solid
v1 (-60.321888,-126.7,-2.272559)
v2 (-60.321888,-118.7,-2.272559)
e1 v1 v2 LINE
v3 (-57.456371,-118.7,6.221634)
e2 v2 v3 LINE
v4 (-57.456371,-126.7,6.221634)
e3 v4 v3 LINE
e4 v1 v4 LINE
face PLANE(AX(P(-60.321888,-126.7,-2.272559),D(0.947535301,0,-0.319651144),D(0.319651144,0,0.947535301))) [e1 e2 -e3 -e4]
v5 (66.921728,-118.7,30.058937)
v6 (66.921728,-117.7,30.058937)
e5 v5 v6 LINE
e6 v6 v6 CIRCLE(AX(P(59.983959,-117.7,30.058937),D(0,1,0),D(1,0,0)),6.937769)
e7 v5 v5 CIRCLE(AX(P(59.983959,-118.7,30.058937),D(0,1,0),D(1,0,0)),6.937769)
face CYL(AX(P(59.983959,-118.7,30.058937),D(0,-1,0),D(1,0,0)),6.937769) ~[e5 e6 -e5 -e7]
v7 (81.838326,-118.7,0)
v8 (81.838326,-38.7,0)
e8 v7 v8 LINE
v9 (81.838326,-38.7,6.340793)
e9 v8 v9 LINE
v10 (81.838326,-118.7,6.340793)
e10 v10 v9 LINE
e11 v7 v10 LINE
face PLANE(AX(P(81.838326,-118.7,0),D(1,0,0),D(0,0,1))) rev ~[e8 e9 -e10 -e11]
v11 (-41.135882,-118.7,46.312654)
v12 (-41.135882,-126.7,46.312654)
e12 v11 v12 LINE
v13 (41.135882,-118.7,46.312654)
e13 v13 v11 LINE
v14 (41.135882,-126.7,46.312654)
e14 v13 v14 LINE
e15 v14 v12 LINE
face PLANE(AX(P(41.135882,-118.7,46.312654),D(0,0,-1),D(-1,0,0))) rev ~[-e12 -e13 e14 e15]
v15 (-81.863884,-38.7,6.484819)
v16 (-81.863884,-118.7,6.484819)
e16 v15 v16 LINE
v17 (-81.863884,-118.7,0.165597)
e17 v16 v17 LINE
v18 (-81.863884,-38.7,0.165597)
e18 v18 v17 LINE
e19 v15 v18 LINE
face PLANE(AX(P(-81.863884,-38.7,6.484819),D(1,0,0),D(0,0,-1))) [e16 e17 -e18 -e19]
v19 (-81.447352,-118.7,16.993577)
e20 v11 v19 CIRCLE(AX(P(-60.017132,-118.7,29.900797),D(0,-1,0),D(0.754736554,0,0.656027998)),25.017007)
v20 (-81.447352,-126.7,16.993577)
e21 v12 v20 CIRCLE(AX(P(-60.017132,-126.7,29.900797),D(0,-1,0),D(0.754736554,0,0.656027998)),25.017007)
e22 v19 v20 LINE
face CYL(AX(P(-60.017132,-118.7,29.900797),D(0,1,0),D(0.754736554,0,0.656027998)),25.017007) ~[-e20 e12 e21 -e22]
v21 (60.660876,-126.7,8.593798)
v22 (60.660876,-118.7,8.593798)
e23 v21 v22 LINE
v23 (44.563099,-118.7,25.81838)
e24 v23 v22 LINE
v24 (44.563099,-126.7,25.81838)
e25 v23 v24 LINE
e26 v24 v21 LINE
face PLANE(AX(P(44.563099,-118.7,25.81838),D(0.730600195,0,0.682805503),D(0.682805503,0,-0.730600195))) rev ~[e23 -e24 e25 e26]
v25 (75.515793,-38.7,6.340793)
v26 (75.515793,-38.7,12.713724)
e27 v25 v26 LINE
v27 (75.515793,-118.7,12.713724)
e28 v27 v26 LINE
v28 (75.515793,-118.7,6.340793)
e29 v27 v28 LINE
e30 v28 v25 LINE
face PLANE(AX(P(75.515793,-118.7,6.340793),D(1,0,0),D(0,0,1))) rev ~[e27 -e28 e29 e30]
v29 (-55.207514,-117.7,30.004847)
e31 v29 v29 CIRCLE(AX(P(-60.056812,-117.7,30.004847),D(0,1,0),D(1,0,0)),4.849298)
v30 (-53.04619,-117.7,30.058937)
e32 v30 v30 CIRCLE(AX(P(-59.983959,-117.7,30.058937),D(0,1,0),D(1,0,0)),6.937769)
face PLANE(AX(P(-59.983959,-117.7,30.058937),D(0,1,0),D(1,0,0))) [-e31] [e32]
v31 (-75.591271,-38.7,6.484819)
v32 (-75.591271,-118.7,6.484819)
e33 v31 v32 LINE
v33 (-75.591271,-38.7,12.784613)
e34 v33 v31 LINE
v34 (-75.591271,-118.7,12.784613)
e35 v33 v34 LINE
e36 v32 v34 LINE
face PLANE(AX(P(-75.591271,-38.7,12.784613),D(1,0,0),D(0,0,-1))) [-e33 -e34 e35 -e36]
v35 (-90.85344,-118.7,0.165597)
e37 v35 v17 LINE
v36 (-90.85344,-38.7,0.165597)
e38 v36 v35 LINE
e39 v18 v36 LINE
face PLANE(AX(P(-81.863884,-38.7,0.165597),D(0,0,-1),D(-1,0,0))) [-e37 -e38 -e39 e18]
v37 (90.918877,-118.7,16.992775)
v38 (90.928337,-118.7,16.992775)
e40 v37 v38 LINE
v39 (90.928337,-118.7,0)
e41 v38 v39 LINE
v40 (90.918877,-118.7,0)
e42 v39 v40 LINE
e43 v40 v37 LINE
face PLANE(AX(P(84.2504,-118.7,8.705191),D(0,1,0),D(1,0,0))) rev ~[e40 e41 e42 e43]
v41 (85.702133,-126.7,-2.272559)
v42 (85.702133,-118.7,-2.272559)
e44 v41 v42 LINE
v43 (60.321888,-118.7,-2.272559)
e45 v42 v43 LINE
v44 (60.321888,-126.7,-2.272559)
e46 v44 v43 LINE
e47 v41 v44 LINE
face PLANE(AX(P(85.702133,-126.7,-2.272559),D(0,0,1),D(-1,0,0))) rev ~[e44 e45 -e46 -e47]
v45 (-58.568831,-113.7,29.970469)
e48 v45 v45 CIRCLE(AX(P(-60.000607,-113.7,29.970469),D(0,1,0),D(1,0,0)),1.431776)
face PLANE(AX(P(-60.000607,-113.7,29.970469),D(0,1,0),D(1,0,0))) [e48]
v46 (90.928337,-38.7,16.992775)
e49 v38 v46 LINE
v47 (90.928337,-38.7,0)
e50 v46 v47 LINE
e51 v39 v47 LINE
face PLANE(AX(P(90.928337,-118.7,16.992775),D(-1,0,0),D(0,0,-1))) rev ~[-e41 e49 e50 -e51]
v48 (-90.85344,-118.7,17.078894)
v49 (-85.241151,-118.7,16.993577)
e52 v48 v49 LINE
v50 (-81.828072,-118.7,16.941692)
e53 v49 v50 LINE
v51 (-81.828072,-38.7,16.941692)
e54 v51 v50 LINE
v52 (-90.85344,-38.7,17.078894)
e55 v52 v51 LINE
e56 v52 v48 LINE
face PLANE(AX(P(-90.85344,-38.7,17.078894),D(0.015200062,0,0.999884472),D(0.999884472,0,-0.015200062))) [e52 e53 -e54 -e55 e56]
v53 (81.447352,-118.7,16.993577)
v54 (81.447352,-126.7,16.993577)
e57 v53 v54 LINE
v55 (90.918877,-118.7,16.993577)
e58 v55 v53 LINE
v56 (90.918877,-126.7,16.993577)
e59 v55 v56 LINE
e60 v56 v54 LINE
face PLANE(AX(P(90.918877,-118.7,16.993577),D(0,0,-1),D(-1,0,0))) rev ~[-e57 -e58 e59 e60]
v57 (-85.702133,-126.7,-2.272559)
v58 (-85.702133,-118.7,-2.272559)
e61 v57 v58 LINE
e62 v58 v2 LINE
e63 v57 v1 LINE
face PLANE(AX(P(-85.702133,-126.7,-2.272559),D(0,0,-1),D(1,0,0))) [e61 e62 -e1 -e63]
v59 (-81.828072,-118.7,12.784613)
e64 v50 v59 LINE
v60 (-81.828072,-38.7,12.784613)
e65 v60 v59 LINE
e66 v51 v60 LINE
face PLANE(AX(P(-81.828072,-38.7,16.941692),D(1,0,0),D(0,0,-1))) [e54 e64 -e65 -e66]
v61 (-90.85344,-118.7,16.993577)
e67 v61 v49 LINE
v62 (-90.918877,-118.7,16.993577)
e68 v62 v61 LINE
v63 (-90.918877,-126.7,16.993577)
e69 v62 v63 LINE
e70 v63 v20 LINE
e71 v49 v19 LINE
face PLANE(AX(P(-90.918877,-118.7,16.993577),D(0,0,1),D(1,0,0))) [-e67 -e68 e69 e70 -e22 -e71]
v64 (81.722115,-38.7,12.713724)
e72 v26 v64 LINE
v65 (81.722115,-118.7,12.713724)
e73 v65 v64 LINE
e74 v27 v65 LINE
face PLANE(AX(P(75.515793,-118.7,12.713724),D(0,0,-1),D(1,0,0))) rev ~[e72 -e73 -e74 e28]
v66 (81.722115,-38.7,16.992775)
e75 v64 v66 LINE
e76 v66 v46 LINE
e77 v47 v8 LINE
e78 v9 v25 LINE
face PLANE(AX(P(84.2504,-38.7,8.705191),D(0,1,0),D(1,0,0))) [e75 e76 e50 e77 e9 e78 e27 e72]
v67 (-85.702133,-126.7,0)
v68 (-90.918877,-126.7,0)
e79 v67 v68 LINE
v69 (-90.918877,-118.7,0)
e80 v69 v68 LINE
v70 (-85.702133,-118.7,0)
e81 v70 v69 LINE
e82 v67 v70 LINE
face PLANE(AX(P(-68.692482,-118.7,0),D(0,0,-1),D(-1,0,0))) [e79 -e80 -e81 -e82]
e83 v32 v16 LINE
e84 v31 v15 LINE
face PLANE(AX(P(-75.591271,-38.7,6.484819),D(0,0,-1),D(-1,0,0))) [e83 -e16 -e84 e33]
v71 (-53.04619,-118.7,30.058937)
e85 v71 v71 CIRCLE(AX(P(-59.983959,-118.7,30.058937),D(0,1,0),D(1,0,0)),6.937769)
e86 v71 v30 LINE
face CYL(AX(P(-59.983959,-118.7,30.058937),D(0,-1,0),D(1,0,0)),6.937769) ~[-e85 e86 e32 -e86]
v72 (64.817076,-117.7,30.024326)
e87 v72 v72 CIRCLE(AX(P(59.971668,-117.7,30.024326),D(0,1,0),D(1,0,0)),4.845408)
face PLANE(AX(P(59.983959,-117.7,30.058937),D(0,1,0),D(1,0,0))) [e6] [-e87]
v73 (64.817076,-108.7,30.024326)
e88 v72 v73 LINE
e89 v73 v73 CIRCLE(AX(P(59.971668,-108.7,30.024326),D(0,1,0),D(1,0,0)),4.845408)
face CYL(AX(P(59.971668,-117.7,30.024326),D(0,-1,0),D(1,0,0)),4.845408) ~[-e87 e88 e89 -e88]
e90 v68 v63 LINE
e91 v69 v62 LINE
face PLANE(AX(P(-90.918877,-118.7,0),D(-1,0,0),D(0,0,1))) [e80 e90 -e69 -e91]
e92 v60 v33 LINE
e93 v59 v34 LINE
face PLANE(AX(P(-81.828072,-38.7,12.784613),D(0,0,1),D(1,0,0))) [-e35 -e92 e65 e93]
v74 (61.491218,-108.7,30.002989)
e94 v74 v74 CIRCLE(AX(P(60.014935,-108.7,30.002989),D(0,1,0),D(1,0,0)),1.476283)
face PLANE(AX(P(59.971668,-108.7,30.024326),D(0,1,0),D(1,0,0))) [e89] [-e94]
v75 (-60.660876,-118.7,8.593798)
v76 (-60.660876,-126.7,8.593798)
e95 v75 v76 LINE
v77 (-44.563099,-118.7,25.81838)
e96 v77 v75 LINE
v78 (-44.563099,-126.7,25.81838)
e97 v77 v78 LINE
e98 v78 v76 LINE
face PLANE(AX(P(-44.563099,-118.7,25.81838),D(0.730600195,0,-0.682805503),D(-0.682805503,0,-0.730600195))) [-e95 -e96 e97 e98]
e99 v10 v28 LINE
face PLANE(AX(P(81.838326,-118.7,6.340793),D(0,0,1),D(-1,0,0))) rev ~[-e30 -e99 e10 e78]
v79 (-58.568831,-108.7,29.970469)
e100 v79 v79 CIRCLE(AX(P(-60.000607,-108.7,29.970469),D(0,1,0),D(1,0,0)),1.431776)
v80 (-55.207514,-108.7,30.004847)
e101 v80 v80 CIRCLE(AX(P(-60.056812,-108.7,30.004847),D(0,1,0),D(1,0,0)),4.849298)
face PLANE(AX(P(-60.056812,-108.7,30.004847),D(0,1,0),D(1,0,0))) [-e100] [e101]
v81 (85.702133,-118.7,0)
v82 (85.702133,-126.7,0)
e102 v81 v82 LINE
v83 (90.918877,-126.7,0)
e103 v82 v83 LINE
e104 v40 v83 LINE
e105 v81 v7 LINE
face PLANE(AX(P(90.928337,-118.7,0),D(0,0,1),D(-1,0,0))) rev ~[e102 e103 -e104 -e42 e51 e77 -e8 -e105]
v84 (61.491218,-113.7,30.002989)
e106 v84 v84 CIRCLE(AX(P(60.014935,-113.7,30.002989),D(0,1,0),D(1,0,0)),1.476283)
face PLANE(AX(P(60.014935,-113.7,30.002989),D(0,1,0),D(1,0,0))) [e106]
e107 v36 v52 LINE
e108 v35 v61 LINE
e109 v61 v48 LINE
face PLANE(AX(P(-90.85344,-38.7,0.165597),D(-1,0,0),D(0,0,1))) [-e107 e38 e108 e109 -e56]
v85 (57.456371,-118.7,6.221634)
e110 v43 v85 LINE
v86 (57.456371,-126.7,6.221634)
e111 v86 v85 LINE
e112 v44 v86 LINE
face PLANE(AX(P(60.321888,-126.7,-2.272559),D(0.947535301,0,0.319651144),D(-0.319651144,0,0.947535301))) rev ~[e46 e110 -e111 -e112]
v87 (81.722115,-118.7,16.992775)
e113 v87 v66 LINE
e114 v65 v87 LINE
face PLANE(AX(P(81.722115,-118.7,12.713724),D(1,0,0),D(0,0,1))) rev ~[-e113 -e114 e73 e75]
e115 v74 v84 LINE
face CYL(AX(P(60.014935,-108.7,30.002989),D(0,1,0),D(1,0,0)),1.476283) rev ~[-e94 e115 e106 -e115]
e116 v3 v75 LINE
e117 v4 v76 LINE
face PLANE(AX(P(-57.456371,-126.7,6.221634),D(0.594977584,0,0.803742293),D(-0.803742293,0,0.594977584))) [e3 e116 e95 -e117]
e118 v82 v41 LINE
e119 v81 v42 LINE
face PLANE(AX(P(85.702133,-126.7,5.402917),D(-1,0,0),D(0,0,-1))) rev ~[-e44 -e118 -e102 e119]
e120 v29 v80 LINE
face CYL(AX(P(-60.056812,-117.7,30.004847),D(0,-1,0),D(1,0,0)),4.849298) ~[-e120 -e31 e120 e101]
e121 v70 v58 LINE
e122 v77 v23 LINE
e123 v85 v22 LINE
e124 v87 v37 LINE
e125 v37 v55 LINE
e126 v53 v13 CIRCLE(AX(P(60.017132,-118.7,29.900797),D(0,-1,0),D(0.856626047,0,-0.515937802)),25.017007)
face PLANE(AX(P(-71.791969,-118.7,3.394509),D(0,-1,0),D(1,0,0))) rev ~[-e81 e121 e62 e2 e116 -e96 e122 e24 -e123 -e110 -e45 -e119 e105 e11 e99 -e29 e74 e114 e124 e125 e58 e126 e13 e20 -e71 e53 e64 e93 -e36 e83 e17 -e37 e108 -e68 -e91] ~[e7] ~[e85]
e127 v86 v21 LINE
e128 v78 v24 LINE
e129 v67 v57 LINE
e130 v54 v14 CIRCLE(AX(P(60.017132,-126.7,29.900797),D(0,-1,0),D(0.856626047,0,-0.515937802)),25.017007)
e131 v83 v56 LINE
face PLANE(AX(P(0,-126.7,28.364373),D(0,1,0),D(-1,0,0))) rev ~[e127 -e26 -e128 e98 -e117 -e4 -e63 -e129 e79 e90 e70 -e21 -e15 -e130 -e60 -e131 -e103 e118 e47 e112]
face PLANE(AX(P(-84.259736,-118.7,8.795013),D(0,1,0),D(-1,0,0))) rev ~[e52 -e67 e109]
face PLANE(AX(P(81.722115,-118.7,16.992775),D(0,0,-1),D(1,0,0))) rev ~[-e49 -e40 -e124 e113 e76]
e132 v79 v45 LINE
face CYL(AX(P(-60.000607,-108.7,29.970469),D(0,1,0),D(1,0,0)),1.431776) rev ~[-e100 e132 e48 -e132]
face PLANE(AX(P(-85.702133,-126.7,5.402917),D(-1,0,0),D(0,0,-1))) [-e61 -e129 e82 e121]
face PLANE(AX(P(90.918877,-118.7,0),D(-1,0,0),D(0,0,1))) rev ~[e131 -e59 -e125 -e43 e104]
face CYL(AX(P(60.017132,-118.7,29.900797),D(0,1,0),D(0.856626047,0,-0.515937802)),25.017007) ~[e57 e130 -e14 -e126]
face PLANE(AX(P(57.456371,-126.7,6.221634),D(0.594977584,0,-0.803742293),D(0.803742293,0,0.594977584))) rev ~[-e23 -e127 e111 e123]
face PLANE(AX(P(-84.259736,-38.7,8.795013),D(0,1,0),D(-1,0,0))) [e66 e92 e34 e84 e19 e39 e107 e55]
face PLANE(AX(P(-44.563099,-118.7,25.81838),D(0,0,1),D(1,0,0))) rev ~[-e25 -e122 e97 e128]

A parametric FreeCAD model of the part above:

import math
import FreeCAD as App
import Part
import Sketcher

V = App.Vector
Q = App.Units.Quantity


def add_polygon(sketch, points):
    """Adds a closed chain of lines whose ends are joined by coincident constraints."""
    first, n = sketch.GeometryCount, len(points)
    for a, b in zip(points, points[1:] + points[:1]):
        sketch.addGeometry(Part.LineSegment(App.Vector(*a, 0), App.Vector(*b, 0)), False)
    for i in range(n):
        sketch.addConstraint(Sketcher.Constraint("Coincident", first + i, 2, first + (i + 1) % n, 1))

doc = App.newDocument("Part")
params = doc.addObject("Spreadsheet::Sheet", "Params")
for row, (alias, value) in enumerate([
    ("pad1_length", "80 mm"),
    ("pad2_length", "8 mm"),
    ("pad3_length", "80 mm"),
    ("pad4_length", "1 mm"),
    ("pad5_length", "9 mm"),
    ("pocket1_length", "5 mm"),
    ("pad6_length", "8 mm"),
], start=1):
    params.set(f"A{row}", alias)
    params.set(f"B{row}", "=" + value)
    params.setAlias(f"B{row}", alias)

body = doc.addObject("PartDesign::Body", "Body")

sketch1 = doc.addObject("Sketcher::SketchObject", "Sketch")
body.addObject(sketch1)
sketch1.AttachmentSupport = (doc.XZ_Plane, [""])
sketch1.MapMode = "FlatFace"
add_polygon(sketch1, [(-81.8, 12.8), (-81.8, 16.9), (-90.9, 17.1), (-90.9, 0.2), (-81.9, 0.2), (-81.9, 6.5), (-75.6, 6.5), (-75.6, 12.8)])
sketch1.addConstraint([
    Sketcher.Constraint("Vertical", 0),
    Sketcher.Constraint("Vertical", 2),
    Sketcher.Constraint("Horizontal", 3),
    Sketcher.Constraint("Vertical", 4),
    Sketcher.Constraint("Horizontal", 5),
    Sketcher.Constraint("Vertical", 6),
    Sketcher.Constraint("Horizontal", 7),
    Sketcher.Constraint("DistanceX", 7, 2, 7, 1, Q("6.236801 mm")),
    Sketcher.Constraint("DistanceY", 0, 1, 0, 2, Q("4.157079 mm")),
    Sketcher.Constraint("DistanceY", 0, 2, 1, 2, Q("0.137202 mm")),
    Sketcher.Constraint("Distance", 1, Q("9.026411 mm")),
    Sketcher.Constraint("DistanceX", 3, 1, 3, 2, Q("8.989556 mm")),
    Sketcher.Constraint("DistanceY", 2, 2, 2, 1, Q("16.913297 mm")),
    Sketcher.Constraint("DistanceY", 4, 1, 4, 2, Q("6.319222 mm")),
    Sketcher.Constraint("DistanceY", -1, 1, 0, 2, Q("16.941692 mm")),
    Sketcher.Constraint("DistanceX", 1, 2, -1, 1, Q("90.85344 mm")),
])
pad1 = doc.addObject("PartDesign::Pad", "Pad")
body.addObject(pad1)
pad1.Profile = sketch1
pad1.setExpression("Length", "Params.pad1_length")

sketch2 = doc.addObject("Sketcher::SketchObject", "Sketch001")
body.addObject(sketch2)
sketch2.AttachmentSupport = (doc.XZ_Plane, [""])
sketch2.MapMode = "FlatFace"
sketch2.AttachmentOffset = App.Placement(V(0, 0, 80), App.Rotation())
sketch2.addGeometry([
    Part.LineSegment(V(-91, 17, 0), V(-91, 0, 0)),
    Part.LineSegment(V(-91, 0, 0), V(-69, 0, 0)),
    Part.LineSegment(V(-69, 0, 0), V(-45, 26, 0)),
    Part.LineSegment(V(-45, 26, 0), V(45, 26, 0)),
    Part.LineSegment(V(45, 26, 0), V(69, 0, 0)),
    Part.LineSegment(V(69, 0, 0), V(91, 0, 0)),
    Part.LineSegment(V(91, 0, 0), V(91, 17, 0)),
    Part.LineSegment(V(91, 17, 0), V(81, 17, 0)),
    Part.ArcOfCircle(Part.Circle(V(60, 30, 0), V(0, 0, 1), 25), math.radians(-31), math.radians(139)),
    Part.LineSegment(V(41, 46, 0), V(-41, 46, 0)),
    Part.ArcOfCircle(Part.Circle(V(-60, 30, 0), V(0, 0, 1), 25), math.radians(41), math.radians(211)),
    Part.LineSegment(V(-81, 17, 0), V(-91, 17, 0)),
], False)
sketch2.addConstraint([
    Sketcher.Constraint("Coincident", 0, 2, 1, 1),
    Sketcher.Constraint("Coincident", 1, 2, 2, 1),
    Sketcher.Constraint("Coincident", 2, 2, 3, 1),
    Sketcher.Constraint("Coincident", 3, 2, 4, 1),
    Sketcher.Constraint("Coincident", 4, 2, 5, 1),
    Sketcher.Constraint("Coincident", 5, 2, 6, 1),
    Sketcher.Constraint("Coincident", 6, 2, 7, 1),
    Sketcher.Constraint("Coincident", 7, 2, 8, 1),
    Sketcher.Constraint("Coincident", 8, 2, 9, 1),
    Sketcher.Constraint("Coincident", 9, 2, 10, 1),
    Sketcher.Constraint("Coincident", 10, 2, 11, 1),
    Sketcher.Constraint("Coincident", 11, 2, 0, 1),
    Sketcher.Constraint("Vertical", 0),
    Sketcher.Constraint("Horizontal", 1),
    Sketcher.Constraint("Horizontal", 3),
    Sketcher.Constraint("Horizontal", 5),
    Sketcher.Constraint("Vertical", 6),
    Sketcher.Constraint("Horizontal", 7),
    Sketcher.Constraint("Horizontal", 9),
    Sketcher.Constraint("Horizontal", 11),
    Sketcher.Constraint("Equal", 8, 10),
    Sketcher.Constraint("Symmetric", 1, 2, 4, 2, -1, 1),
    Sketcher.Constraint("Symmetric", 8, 3, 10, 3, -2),
    Sketcher.Constraint("Symmetric", 0, 2, 5, 2, -2),
    Sketcher.Constraint("Horizontal", 7, 2, 10, 2),
    Sketcher.Constraint("Equal", 2, 4),
    Sketcher.Constraint("DistanceX", 3, 1, 3, 2, Q("89.126198 mm")),
    Sketcher.Constraint("Radius", 8, Q("25.017007 mm")),
    Sketcher.Constraint("DistanceX", 8, 2, 4, 2, Q("27.5566 mm")),
    Sketcher.Constraint("Distance", 2, Q("35.338589 mm")),
    Sketcher.Constraint("DistanceX", 1, 1, 1, 2, Q("22.226395 mm")),
    Sketcher.Constraint("DistanceX", 7, 2, 7, 1, Q("9.471525 mm")),
    Sketcher.Constraint("DistanceX", 9, 2, 9, 1, Q("82.271764 mm")),
    Sketcher.Constraint("DistanceY", 0, 2, 0, 1, Q("16.993577 mm")),
    Sketcher.Constraint("DistanceX", -1, 1, 8, 3, Q("60.017132 mm")),
])
pad2 = doc.addObject("PartDesign::Pad", "Pad001")
body.addObject(pad2)
pad2.Profile = sketch2
pad2.setExpression("Length", "Params.pad2_length")

sketch3 = doc.addObject("Sketcher::SketchObject", "Sketch002")
body.addObject(sketch3)
sketch3.AttachmentSupport = (doc.XZ_Plane, [""])
sketch3.MapMode = "FlatFace"
sketch3.AttachmentOffset = App.Placement(V(0, 0, 80), App.Rotation())
add_polygon(sketch3, [(81.8, 0), (81.8, 6.3), (75.5, 6.3), (75.5, 12.7), (81.7, 12.7), (81.7, 17), (90.9, 17), (90.9, 0)])
sketch3.addConstraint([
    Sketcher.Constraint("Vertical", 0),
    Sketcher.Constraint("Horizontal", 1),
    Sketcher.Constraint("Vertical", 2),
    Sketcher.Constraint("Horizontal", 3),
    Sketcher.Constraint("Vertical", 4),
    Sketcher.Constraint("Horizontal", 5),
    Sketcher.Constraint("Vertical", 6),
    Sketcher.Constraint("Horizontal", 7),
    Sketcher.Constraint("PointOnObject", 6, 2, -1),
    Sketcher.Constraint("DistanceX", 5, 1, 5, 2, Q("9.206222 mm")),
    Sketcher.Constraint("DistanceX", 7, 2, 7, 1, Q("9.090011 mm")),
    Sketcher.Constraint("DistanceY", 2, 1, 2, 2, Q("6.372931 mm")),
    Sketcher.Constraint("DistanceY", 4, 1, 4, 2, Q("4.279051 mm")),
    Sketcher.Constraint("DistanceX", 1, 2, 1, 1, Q("6.322533 mm")),
    Sketcher.Constraint("DistanceY", 0, 1, 0, 2, Q("6.340793 mm")),
    Sketcher.Constraint("DistanceX", -1, 1, 0, 2, Q("81.838326 mm")),
])
pad3 = doc.addObject("PartDesign::Pad", "Pad002")
body.addObject(pad3)
pad3.Profile = sketch3
pad3.setExpression("Length", "Params.pad3_length")
pad3.Reversed = True

sketch4 = doc.addObject("Sketcher::SketchObject", "Sketch003")
body.addObject(sketch4)
sketch4.AttachmentSupport = (doc.XZ_Plane, [""])
sketch4.MapMode = "FlatFace"
sketch4.AttachmentOffset = App.Placement(V(0, 0, 80), App.Rotation())
sketch4.addGeometry([
    Part.Circle(V(-60, 30, 0), V(0, 0, 1), 7),
    Part.Circle(V(60, 30, 0), V(0, 0, 1), 7),
], False)
sketch4.addConstraint([
    Sketcher.Constraint("Equal", 0, 1),
    Sketcher.Constraint("Symmetric", 0, 3, 1, 3, -2),
    Sketcher.Constraint("Diameter", 0, Q("13.875538 mm")),
    Sketcher.Constraint("DistanceX", 0, 3, -1, 1, Q("59.983959 mm")),
    Sketcher.Constraint("DistanceY", -1, 1, 0, 3, Q("30.058937 mm")),
])
pad4 = doc.addObject("PartDesign::Pad", "Pad003")
body.addObject(pad4)
pad4.Profile = sketch4
pad4.setExpression("Length", "Params.pad4_length")
pad4.Reversed = True

sketch5 = doc.addObject("Sketcher::SketchObject", "Sketch004")
body.addObject(sketch5)
sketch5.AttachmentSupport = (doc.XZ_Plane, [""])
sketch5.MapMode = "FlatFace"
sketch5.AttachmentOffset = App.Placement(V(0, 0, 79), App.Rotation())
sketch5.addGeometry([
    Part.Circle(V(-60.1, 30, 0), V(0, 0, 1), 4.8),
    Part.Circle(V(60, 30, 0), V(0, 0, 1), 4.8),
], False)
sketch5.addConstraint([
    Sketcher.Constraint("Diameter", 0, Q("9.698596 mm")),
    Sketcher.Constraint("Diameter", 1, Q("9.690816 mm")),
    Sketcher.Constraint("DistanceX", 0, 3, 1, 3, Q("120.02848 mm")),
    Sketcher.Constraint("DistanceY", 0, 3, 1, 3, Q("0.019479 mm")),
    Sketcher.Constraint("DistanceX", 0, 3, -1, 1, Q("60.056812 mm")),
    Sketcher.Constraint("DistanceY", -1, 1, 0, 3, Q("30.004847 mm")),
])
pad5 = doc.addObject("PartDesign::Pad", "Pad004")
body.addObject(pad5)
pad5.Profile = sketch5
pad5.setExpression("Length", "Params.pad5_length")
pad5.Reversed = True

sketch6 = doc.addObject("Sketcher::SketchObject", "Sketch005")
body.addObject(sketch6)
sketch6.AttachmentSupport = (doc.XZ_Plane, [""])
sketch6.MapMode = "FlatFace"
sketch6.AttachmentOffset = App.Placement(V(0, 0, 70), App.Rotation())
sketch6.addGeometry([
    Part.Circle(V(-60, 30, 0), V(0, 0, 1), 1.4),
    Part.Circle(V(60, 30, 0), V(0, 0, 1), 1.5),
], False)
sketch6.addConstraint([
    Sketcher.Constraint("Diameter", 0, Q("2.863552 mm")),
    Sketcher.Constraint("Diameter", 1, Q("2.952566 mm")),
    Sketcher.Constraint("DistanceY", -1, 1, 0, 3, Q("29.970469 mm")),
    Sketcher.Constraint("DistanceY", -1, 1, 1, 3, Q("30.002989 mm")),
    Sketcher.Constraint("DistanceX", 0, 3, -1, 1, Q("60.000607 mm")),
    Sketcher.Constraint("DistanceX", -1, 1, 1, 3, Q("60.014935 mm")),
])
pocket1 = doc.addObject("PartDesign::Pocket", "Pocket")
body.addObject(pocket1)
pocket1.Profile = sketch6
pocket1.setExpression("Length", "Params.pocket1_length")
pocket1.Reversed = True

sketch7 = doc.addObject("Sketcher::SketchObject", "Sketch006")
body.addObject(sketch7)
sketch7.AttachmentSupport = (doc.XZ_Plane, [""])
sketch7.MapMode = "FlatFace"
sketch7.AttachmentOffset = App.Placement(V(0, 0, 88), App.Rotation())
add_polygon(sketch7, [(-86, 5), (-86, -2), (-60, -2), (-57, 6), (-65, 12)])
add_polygon(sketch7, [(86, -2), (86, 5), (65, 12), (57, 6), (60, -2)])
sketch7.addConstraint([
    Sketcher.Constraint("Vertical", 0),
    Sketcher.Constraint("Horizontal", 1),
    Sketcher.Constraint("Vertical", 5),
    Sketcher.Constraint("Horizontal", 9),
    Sketcher.Constraint("Symmetric", 4, 2, 5, 2, -2),
    Sketcher.Constraint("Symmetric", 3, 2, 6, 2, -2),
    Sketcher.Constraint("Symmetric", 2, 2, 7, 2, -2),
    Sketcher.Constraint("Symmetric", 1, 2, 8, 2, -2),
    Sketcher.Constraint("DistanceX", 0, 2, 3, 2, Q("20.3656 mm")),
    Sketcher.Constraint("Distance", 3, Q("9.804339 mm")),
    Sketcher.Constraint("DistanceX", 1, 1, 1, 2, Q("25.380245 mm")),
    Sketcher.Constraint("DistanceY", 0, 2, 0, 1, Q("7.675476 mm")),
    Sketcher.Constraint("DistanceY", 0, 2, -1, 1, Q("2.272559 mm")),
    Sketcher.Constraint("DistanceX", 2, 2, -1, 1, Q("57.456371 mm")),
    Sketcher.Constraint("DistanceY", 2, 2, 3, 2, Q("5.833362 mm")),
    Sketcher.Constraint("DistanceY", 4, 2, 3, 2, Q("6.652079 mm")),
])
pad6 = doc.addObject("PartDesign::Pad", "Pad005")
body.addObject(pad6)
pad6.Profile = sketch7
pad6.setExpression("Length", "Params.pad6_length")
pad6.Reversed = True
body2 = doc.addObject("PartDesign::Body", "Body001")
doc.recompute()

body.Placement = App.Placement(V(0, -38.7, 0), App.Rotation(V(0, 0, 1), 0))
boolean = doc.addObject("PartDesign::Boolean", "Boolean")
body2.addObject(boolean)
boolean.Type = "Fuse"
boolean.addObjects([body])

doc.recompute()
